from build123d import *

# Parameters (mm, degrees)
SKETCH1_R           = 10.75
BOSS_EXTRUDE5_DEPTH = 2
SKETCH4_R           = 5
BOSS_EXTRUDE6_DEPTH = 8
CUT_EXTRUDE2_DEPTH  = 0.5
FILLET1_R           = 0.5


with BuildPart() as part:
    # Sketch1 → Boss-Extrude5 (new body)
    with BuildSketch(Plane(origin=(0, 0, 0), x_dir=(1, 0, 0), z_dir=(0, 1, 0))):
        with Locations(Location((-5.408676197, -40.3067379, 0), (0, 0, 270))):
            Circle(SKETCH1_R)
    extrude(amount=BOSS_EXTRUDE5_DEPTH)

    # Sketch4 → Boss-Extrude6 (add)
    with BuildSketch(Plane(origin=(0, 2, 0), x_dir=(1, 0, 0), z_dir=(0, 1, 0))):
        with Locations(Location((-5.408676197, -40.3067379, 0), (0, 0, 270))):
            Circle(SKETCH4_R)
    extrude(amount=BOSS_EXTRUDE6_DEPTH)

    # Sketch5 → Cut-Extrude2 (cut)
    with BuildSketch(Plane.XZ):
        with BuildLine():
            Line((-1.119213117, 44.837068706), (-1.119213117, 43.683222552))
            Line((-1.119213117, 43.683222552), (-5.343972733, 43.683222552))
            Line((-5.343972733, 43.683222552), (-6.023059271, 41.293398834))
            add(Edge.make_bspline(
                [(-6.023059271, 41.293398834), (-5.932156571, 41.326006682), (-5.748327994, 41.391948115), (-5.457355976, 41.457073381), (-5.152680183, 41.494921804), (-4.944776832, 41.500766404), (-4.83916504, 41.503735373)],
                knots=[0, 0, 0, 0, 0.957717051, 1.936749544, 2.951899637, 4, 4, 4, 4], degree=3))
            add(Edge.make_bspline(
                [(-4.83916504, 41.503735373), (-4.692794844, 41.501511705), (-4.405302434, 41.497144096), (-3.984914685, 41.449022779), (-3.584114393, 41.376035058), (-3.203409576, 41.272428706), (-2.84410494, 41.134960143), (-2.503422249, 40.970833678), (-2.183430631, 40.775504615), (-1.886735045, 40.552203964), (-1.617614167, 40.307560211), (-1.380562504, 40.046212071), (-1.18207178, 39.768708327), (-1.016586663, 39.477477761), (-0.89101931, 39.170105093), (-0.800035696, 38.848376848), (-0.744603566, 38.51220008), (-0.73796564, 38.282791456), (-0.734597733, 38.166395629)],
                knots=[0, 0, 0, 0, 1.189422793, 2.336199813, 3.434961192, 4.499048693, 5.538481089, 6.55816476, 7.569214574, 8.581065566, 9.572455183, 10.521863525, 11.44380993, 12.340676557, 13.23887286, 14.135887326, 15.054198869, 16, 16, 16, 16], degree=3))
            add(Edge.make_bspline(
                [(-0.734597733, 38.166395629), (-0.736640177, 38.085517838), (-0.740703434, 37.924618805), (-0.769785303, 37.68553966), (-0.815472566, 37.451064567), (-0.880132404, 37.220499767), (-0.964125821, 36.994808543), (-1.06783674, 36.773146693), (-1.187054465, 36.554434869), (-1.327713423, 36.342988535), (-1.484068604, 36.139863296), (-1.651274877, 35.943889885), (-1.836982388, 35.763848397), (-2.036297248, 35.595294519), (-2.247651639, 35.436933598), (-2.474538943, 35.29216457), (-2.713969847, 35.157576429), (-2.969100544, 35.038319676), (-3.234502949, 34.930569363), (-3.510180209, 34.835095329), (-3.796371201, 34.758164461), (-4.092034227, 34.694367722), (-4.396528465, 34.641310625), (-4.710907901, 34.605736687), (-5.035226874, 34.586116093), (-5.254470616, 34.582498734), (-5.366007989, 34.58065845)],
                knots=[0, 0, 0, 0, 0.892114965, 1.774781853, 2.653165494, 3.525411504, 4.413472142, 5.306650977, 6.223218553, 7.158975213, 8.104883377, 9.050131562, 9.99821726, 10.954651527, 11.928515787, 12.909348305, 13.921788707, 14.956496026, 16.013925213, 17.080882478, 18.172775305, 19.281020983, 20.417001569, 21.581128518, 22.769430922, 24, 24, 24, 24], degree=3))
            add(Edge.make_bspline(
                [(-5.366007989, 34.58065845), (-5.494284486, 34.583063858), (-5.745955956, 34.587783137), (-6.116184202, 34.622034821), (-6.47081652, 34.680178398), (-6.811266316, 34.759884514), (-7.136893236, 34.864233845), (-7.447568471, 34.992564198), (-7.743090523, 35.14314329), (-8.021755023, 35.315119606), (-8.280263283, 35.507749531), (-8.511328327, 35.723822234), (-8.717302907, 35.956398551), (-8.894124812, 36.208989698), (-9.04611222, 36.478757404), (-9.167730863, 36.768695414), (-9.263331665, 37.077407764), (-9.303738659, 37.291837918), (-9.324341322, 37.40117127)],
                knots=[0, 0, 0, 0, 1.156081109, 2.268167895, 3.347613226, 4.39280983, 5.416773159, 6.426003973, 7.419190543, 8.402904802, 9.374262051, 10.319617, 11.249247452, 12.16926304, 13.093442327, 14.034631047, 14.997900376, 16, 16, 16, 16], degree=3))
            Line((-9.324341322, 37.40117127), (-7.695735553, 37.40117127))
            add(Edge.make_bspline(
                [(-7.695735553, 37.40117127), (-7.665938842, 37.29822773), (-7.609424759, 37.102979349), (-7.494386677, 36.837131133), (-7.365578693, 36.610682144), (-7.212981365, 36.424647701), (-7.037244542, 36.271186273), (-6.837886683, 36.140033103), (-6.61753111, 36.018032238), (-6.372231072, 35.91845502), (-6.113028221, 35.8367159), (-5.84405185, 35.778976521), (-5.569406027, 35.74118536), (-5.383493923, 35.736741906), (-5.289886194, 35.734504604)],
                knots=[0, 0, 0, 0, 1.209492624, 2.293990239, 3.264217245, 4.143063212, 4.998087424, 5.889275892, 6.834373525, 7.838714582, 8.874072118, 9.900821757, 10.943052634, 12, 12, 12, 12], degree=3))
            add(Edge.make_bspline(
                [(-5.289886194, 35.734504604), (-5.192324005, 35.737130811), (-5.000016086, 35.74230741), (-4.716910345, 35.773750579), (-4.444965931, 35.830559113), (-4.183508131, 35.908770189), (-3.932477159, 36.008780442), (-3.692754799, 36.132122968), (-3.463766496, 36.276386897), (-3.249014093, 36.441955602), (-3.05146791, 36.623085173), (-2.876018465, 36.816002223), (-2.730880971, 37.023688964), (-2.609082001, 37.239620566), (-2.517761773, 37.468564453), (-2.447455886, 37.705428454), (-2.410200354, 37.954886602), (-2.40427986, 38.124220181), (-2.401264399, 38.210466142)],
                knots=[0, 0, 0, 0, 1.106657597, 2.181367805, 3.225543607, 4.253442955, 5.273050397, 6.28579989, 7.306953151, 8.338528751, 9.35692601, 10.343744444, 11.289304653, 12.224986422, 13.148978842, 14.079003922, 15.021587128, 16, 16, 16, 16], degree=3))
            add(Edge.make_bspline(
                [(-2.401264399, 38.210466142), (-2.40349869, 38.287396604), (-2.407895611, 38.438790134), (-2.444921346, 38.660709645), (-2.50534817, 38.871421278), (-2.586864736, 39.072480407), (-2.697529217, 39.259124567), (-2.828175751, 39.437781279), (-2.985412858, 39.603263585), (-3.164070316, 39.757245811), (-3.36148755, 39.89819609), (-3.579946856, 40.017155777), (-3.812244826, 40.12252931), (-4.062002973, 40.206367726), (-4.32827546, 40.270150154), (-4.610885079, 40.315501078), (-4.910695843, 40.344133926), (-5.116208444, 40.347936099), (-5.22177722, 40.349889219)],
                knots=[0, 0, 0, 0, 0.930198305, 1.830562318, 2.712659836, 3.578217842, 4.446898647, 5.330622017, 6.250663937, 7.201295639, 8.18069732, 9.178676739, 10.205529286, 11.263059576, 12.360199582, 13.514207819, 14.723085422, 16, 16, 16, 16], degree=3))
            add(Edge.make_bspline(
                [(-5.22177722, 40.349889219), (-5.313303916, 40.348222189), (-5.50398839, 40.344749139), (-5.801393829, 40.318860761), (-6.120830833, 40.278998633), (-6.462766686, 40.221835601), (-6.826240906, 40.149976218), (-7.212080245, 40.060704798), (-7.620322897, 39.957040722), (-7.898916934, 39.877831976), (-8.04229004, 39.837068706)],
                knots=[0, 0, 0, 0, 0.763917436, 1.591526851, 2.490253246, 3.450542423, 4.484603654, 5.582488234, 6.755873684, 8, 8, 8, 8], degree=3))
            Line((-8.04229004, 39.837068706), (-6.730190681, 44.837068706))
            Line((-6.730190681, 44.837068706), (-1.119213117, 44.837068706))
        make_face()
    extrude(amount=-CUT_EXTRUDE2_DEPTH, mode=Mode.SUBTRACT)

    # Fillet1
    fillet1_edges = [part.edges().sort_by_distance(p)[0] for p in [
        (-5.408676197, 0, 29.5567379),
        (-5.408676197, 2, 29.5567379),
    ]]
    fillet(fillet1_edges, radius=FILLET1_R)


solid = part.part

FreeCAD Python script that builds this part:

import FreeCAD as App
import Part
import Sketcher
Q = App.Units.Quantity


def edges_at(feature, points):
    """Names of the edges that pass closest to the given points."""
    edges = feature.Shape.Edges
    near = lambda p: min(range(len(edges)), key=lambda i: edges[i].distToShape(Part.Vertex(*p))[0])
    return sorted({f"Edge{near(p) + 1}" for p in points})

doc = App.newDocument("Part")
body = doc.addObject("PartDesign::Body", "Body")

# Sketch on XZ plane
sketch1 = doc.addObject("Sketcher::SketchObject", "Sketch")
body.addObject(sketch1)
sketch1.AttachmentSupport = (doc.XZ_Plane, [""])
sketch1.MapMode = "FlatFace"
sketch1.addGeometry(Part.Circle(App.Vector(-5.408676, 40.306738, 0), App.Vector(0, 0, 1), 10.75), False)
sketch1.addConstraint([
    Sketcher.Constraint("Diameter", 0, Q("21.5 mm")),
    Sketcher.Constraint("DistanceX", 0, 3, -1, 1, Q("5.408676 mm")),
    Sketcher.Constraint("DistanceY", -1, 1, 0, 3, Q("40.306738 mm")),
])
pad1 = doc.addObject("PartDesign::Pad", "Pad")
body.addObject(pad1)
pad1.Profile = sketch1
pad1.Length = 2
pad1.Reversed = True

# Sketch on XZ plane
sketch2 = doc.addObject("Sketcher::SketchObject", "Sketch001")
body.addObject(sketch2)
sketch2.AttachmentSupport = (doc.XZ_Plane, [""])
sketch2.MapMode = "FlatFace"
sketch2.AttachmentOffset = App.Placement(App.Vector(0, 0, -2), App.Rotation())
sketch2.addGeometry(Part.Circle(App.Vector(-5.408676, 40.306738, 0), App.Vector(0, 0, 1), 5), False)
sketch2.addConstraint([
    Sketcher.Constraint("Diameter", 0, Q("10 mm")),
    Sketcher.Constraint("DistanceX", 0, 3, -1, 1, Q("5.408676 mm")),
    Sketcher.Constraint("DistanceY", -1, 1, 0, 3, Q("40.306738 mm")),
])
pad2 = doc.addObject("PartDesign::Pad", "Pad001")
body.addObject(pad2)
pad2.Profile = sketch2
pad2.Length = 8
pad2.Reversed = True

# Sketch on XZ plane
sketch3 = doc.addObject("Sketcher::SketchObject", "Sketch002")
body.addObject(sketch3)
sketch3.AttachmentSupport = (doc.XZ_Plane, [""])
sketch3.MapMode = "FlatFace"
sketch3.addGeometry([
    Part.LineSegment(App.Vector(-1.119213, 43.683223, 0), App.Vector(-1.119213, 44.837069, 0)),  # 0
    Part.LineSegment(App.Vector(-1.119213, 44.837069, 0), App.Vector(-6.730191, 44.837069, 0)),  # 1
    Part.LineSegment(App.Vector(-6.730191, 44.837069, 0), App.Vector(-8.04229, 39.837069, 0)),  # 2
    Part.BSplineCurve([App.Vector(-5.221777, 40.349889, 0), App.Vector(-5.313304, 40.348222, 0), App.Vector(-5.503988, 40.344749, 0), App.Vector(-5.801394, 40.318861, 0), App.Vector(-6.120831, 40.278999, 0), App.Vector(-6.462767, 40.221836, 0), App.Vector(-6.826241, 40.149976, 0), App.Vector(-7.21208, 40.060705, 0), App.Vector(-7.620323, 39.957041, 0), App.Vector(-7.898917, 39.877832, 0), App.Vector(-8.04229, 39.837069, 0)], [4, 1, 1, 1, 1, 1, 1, 1, 4], [0, 0.763917436, 1.591526851, 2.490253246, 3.450542423, 4.484603654, 5.582488234, 6.755873684, 8], False, 3, [1, 1, 1, 1, 1, 1, 1, 1, 1, 1, 1], False),  # 3
    Part.BSplineCurve([App.Vector(-2.401264, 38.210466, 0), App.Vector(-2.403499, 38.287397, 0), App.Vector(-2.407896, 38.43879, 0), App.Vector(-2.444921, 38.66071, 0), App.Vector(-2.505348, 38.871421, 0), App.Vector(-2.586865, 39.07248, 0), App.Vector(-2.697529, 39.259125, 0), App.Vector(-2.828176, 39.437781, 0), App.Vector(-2.985413, 39.603264, 0), App.Vector(-3.16407, 39.757246, 0), App.Vector(-3.361488, 39.898196, 0), App.Vector(-3.579947, 40.017156, 0), App.Vector(-3.812245, 40.122529, 0), App.Vector(-4.062003, 40.206368, 0), App.Vector(-4.328275, 40.27015, 0), App.Vector(-4.610885, 40.315501, 0), App.Vector(-4.910696, 40.344134, 0), App.Vector(-5.116208, 40.347936, 0), App.Vector(-5.221777, 40.349889, 0)], [4, 1, 1, 1, 1, 1, 1, 1, 1, 1, 1, 1, 1, 1, 1, 1, 4], [0, 0.930198305, 1.830562318, 2.712659836, 3.578217842, 4.446898647, 5.330622017, 6.250663937, 7.201295639, 8.18069732, 9.178676739, 10.205529286, 11.263059576, 12.360199582, 13.514207819, 14.723085422, 16], False, 3, [1, 1, 1, 1, 1, 1, 1, 1, 1, 1, 1, 1, 1, 1, 1, 1, 1, 1, 1], False),  # 4
    Part.BSplineCurve([App.Vector(-5.289886, 35.734505, 0), App.Vector(-5.192324, 35.737131, 0), App.Vector(-5.000016, 35.742307, 0), App.Vector(-4.71691, 35.773751, 0), App.Vector(-4.444966, 35.830559, 0), App.Vector(-4.183508, 35.90877, 0), App.Vector(-3.932477, 36.00878, 0), App.Vector(-3.692755, 36.132123, 0), App.Vector(-3.463766, 36.276387, 0), App.Vector(-3.249014, 36.441956, 0), App.Vector(-3.051468, 36.623085, 0), App.Vector(-2.876018, 36.816002, 0), App.Vector(-2.730881, 37.023689, 0), App.Vector(-2.609082, 37.239621, 0), App.Vector(-2.517762, 37.468564, 0), App.Vector(-2.447456, 37.705428, 0), App.Vector(-2.4102, 37.954887, 0), App.Vector(-2.40428, 38.12422, 0), App.Vector(-2.401264, 38.210466, 0)], [4, 1, 1, 1, 1, 1, 1, 1, 1, 1, 1, 1, 1, 1, 1, 1, 4], [0, 1.106657597, 2.181367805, 3.225543607, 4.253442955, 5.273050397, 6.28579989, 7.306953151, 8.338528751, 9.35692601, 10.343744444, 11.289304653, 12.224986422, 13.148978842, 14.079003922, 15.021587128, 16], False, 3, [1, 1, 1, 1, 1, 1, 1, 1, 1, 1, 1, 1, 1, 1, 1, 1, 1, 1, 1], False),  # 5
    Part.BSplineCurve([App.Vector(-7.695736, 37.401171, 0), App.Vector(-7.665939, 37.298228, 0), App.Vector(-7.609425, 37.102979, 0), App.Vector(-7.494387, 36.837131, 0), App.Vector(-7.365579, 36.610682, 0), App.Vector(-7.212981, 36.424648, 0), App.Vector(-7.037245, 36.271186, 0), App.Vector(-6.837887, 36.140033, 0), App.Vector(-6.617531, 36.018032, 0), App.Vector(-6.372231, 35.918455, 0), App.Vector(-6.113028, 35.836716, 0), App.Vector(-5.844052, 35.778977, 0), App.Vector(-5.569406, 35.741185, 0), App.Vector(-5.383494, 35.736742, 0), App.Vector(-5.289886, 35.734505, 0)], [4, 1, 1, 1, 1, 1, 1, 1, 1, 1, 1, 1, 4], [0, 1.209492624, 2.293990239, 3.264217245, 4.143063212, 4.998087424, 5.889275892, 6.834373525, 7.838714582, 8.874072118, 9.900821757, 10.943052634, 12], False, 3, [1, 1, 1, 1, 1, 1, 1, 1, 1, 1, 1, 1, 1, 1, 1], False),  # 6
    Part.LineSegment(App.Vector(-7.695736, 37.401171, 0), App.Vector(-9.324341, 37.401171, 0)),  # 7
    Part.BSplineCurve([App.Vector(-5.366008, 34.580658, 0), App.Vector(-5.494284, 34.583064, 0), App.Vector(-5.745956, 34.587783, 0), App.Vector(-6.116184, 34.622035, 0), App.Vector(-6.470817, 34.680178, 0), App.Vector(-6.811266, 34.759885, 0), App.Vector(-7.136893, 34.864234, 0), App.Vector(-7.447568, 34.992564, 0), App.Vector(-7.743091, 35.143143, 0), App.Vector(-8.021755, 35.31512, 0), App.Vector(-8.280263, 35.50775, 0), App.Vector(-8.511328, 35.723822, 0), App.Vector(-8.717303, 35.956399, 0), App.Vector(-8.894125, 36.20899, 0), App.Vector(-9.046112, 36.478757, 0), App.Vector(-9.167731, 36.768695, 0), App.Vector(-9.263332, 37.077408, 0), App.Vector(-9.303739, 37.291838, 0), App.Vector(-9.324341, 37.401171, 0)], [4, 1, 1, 1, 1, 1, 1, 1, 1, 1, 1, 1, 1, 1, 1, 1, 4], [0, 1.156081109, 2.268167895, 3.347613226, 4.39280983, 5.416773159, 6.426003973, 7.419190543, 8.402904802, 9.374262051, 10.319617, 11.249247452, 12.16926304, 13.093442327, 14.034631047, 14.997900376, 16], False, 3, [1, 1, 1, 1, 1, 1, 1, 1, 1, 1, 1, 1, 1, 1, 1, 1, 1, 1, 1], False),  # 8
    Part.BSplineCurve([App.Vector(-0.734598, 38.166396, 0), App.Vector(-0.73664, 38.085518, 0), App.Vector(-0.740703, 37.924619, 0), App.Vector(-0.769785, 37.68554, 0), App.Vector(-0.815473, 37.451065, 0), App.Vector(-0.880132, 37.2205, 0), App.Vector(-0.964126, 36.994809, 0), App.Vector(-1.067837, 36.773147, 0), App.Vector(-1.187054, 36.554435, 0), App.Vector(-1.327713, 36.342989, 0), App.Vector(-1.484069, 36.139863, 0), App.Vector(-1.651275, 35.94389, 0), App.Vector(-1.836982, 35.763848, 0), App.Vector(-2.036297, 35.595295, 0), App.Vector(-2.247652, 35.436934, 0), App.Vector(-2.474539, 35.292165, 0), App.Vector(-2.71397, 35.157576, 0), App.Vector(-2.969101, 35.03832, 0), App.Vector(-3.234503, 34.930569, 0), App.Vector(-3.51018, 34.835095, 0), App.Vector(-3.796371, 34.758164, 0), App.Vector(-4.092034, 34.694368, 0), App.Vector(-4.396528, 34.641311, 0), App.Vector(-4.710908, 34.605737, 0), App.Vector(-5.035227, 34.586116, 0), App.Vector(-5.254471, 34.582499, 0), App.Vector(-5.366008, 34.580658, 0)], [4, 1, 1, 1, 1, 1, 1, 1, 1, 1, 1, 1, 1, 1, 1, 1, 1, 1, 1, 1, 1, 1, 1, 1, 4], [0, 0.892114965, 1.774781853, 2.653165494, 3.525411504, 4.413472142, 5.306650977, 6.223218553, 7.158975213, 8.104883377, 9.050131562, 9.99821726, 10.954651527, 11.928515787, 12.909348305, 13.921788707, 14.956496026, 16.013925213, 17.080882478, 18.172775305, 19.281020983, 20.417001569, 21.581128518, 22.769430922, 24], False, 3, [1, 1, 1, 1, 1, 1, 1, 1, 1, 1, 1, 1, 1, 1, 1, 1, 1, 1, 1, 1, 1, 1, 1, 1, 1, 1, 1], False),  # 9
    Part.BSplineCurve([App.Vector(-4.839165, 41.503735, 0), App.Vector(-4.692795, 41.501512, 0), App.Vector(-4.405302, 41.497144, 0), App.Vector(-3.984915, 41.449023, 0), App.Vector(-3.584114, 41.376035, 0), App.Vector(-3.20341, 41.272429, 0), App.Vector(-2.844105, 41.13496, 0), App.Vector(-2.503422, 40.970834, 0), App.Vector(-2.183431, 40.775505, 0), App.Vector(-1.886735, 40.552204, 0), App.Vector(-1.617614, 40.30756, 0), App.Vector(-1.380563, 40.046212, 0), App.Vector(-1.182072, 39.768708, 0), App.Vector(-1.016587, 39.477478, 0), App.Vector(-0.891019, 39.170105, 0), App.Vector(-0.800036, 38.848377, 0), App.Vector(-0.744604, 38.5122, 0), App.Vector(-0.737966, 38.282791, 0), App.Vector(-0.734598, 38.166396, 0)], [4, 1, 1, 1, 1, 1, 1, 1, 1, 1, 1, 1, 1, 1, 1, 1, 4], [0, 1.189422793, 2.336199813, 3.434961192, 4.499048693, 5.538481089, 6.55816476, 7.569214574, 8.581065566, 9.572455183, 10.521863525, 11.44380993, 12.340676557, 13.23887286, 14.135887326, 15.054198869, 16], False, 3, [1, 1, 1, 1, 1, 1, 1, 1, 1, 1, 1, 1, 1, 1, 1, 1, 1, 1, 1], False),  # 10
    Part.BSplineCurve([App.Vector(-6.023059, 41.293399, 0), App.Vector(-5.932157, 41.326007, 0), App.Vector(-5.748328, 41.391948, 0), App.Vector(-5.457356, 41.457073, 0), App.Vector(-5.15268, 41.494922, 0), App.Vector(-4.944777, 41.500766, 0), App.Vector(-4.839165, 41.503735, 0)], [4, 1, 1, 1, 4], [0, 0.957717051, 1.936749544, 2.951899637, 4], False, 3, [1, 1, 1, 1, 1, 1, 1], False),  # 11
    Part.LineSegment(App.Vector(-6.023059, 41.293399, 0), App.Vector(-5.343973, 43.683223, 0)),  # 12
    Part.LineSegment(App.Vector(-5.343973, 43.683223, 0), App.Vector(-1.119213, 43.683223, 0)),  # 13
], False)
sketch3.addConstraint([
    Sketcher.Constraint("Block", 3),
    Sketcher.Constraint("Block", 4),
    Sketcher.Constraint("Block", 5),
    Sketcher.Constraint("Block", 6),
    Sketcher.Constraint("Block", 8),
    Sketcher.Constraint("Block", 9),
    Sketcher.Constraint("Block", 10),
    Sketcher.Constraint("Block", 11),
    Sketcher.Constraint("Coincident", 0, 2, 1, 1),
    Sketcher.Constraint("Coincident", 1, 2, 2, 1),
    Sketcher.Constraint("Coincident", 2, 2, 3, 2),
    Sketcher.Constraint("Coincident", 6, 1, 7, 1),
    Sketcher.Constraint("Coincident", 7, 2, 8, 2),
    Sketcher.Constraint("Coincident", 11, 1, 12, 1),
    Sketcher.Constraint("Coincident", 12, 2, 13, 1),
    Sketcher.Constraint("Coincident", 13, 2, 0, 1),
    Sketcher.Constraint("Vertical", 0),
    Sketcher.Constraint("Horizontal", 1),
    Sketcher.Constraint("Horizontal", 13),
    Sketcher.Constraint("DistanceY", 2, 2, 1, 2, Q("5 mm")),
    Sketcher.Constraint("DistanceX", 13, 1, 13, 2, Q("4.22476 mm")),
    Sketcher.Constraint("DistanceX", 2, 2, 1, 2, Q("1.312099 mm")),
    Sketcher.Constraint("DistanceX", 1, 2, 1, 1, Q("5.610978 mm")),
    Sketcher.Constraint("DistanceY", 0, 1, 0, 2, Q("1.153846 mm")),
])
pocket1 = doc.addObject("PartDesign::Pocket", "Pocket")
body.addObject(pocket1)
pocket1.Profile = sketch3
pocket1.Length = 0.5
doc.recompute()

fillet = doc.addObject("PartDesign::Fillet", "Fillet")
body.addObject(fillet)
fillet.Base = (pocket1, edges_at(pocket1, [(-5.409, 0, 29.557), (-5.409, 2, 29.557)]))
fillet.Radius = 0.5

doc.recompute()
